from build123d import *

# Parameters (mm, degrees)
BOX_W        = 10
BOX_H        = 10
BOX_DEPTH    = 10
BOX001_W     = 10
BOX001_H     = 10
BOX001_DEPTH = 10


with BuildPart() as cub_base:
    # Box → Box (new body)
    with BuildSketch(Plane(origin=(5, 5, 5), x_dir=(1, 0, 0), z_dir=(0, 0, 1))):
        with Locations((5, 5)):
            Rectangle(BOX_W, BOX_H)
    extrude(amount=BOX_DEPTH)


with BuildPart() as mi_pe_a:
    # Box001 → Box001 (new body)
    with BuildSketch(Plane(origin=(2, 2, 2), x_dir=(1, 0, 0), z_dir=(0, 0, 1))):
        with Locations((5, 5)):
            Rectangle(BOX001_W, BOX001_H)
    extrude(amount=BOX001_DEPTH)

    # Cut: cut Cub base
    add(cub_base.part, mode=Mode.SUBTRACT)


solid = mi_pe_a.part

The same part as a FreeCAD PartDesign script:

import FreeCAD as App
import Part
import Sketcher
from FreeCAD import Vector
Q = App.Units.Quantity


def add_polygon(sketch, points):
    """Adds a closed chain of lines whose ends are joined by coincident constraints."""
    first, n = sketch.GeometryCount, len(points)
    for a, b in zip(points, points[1:] + points[:1]):
        sketch.addGeometry(Part.LineSegment(App.Vector(*a, 0), App.Vector(*b, 0)), False)
    for i in range(n):
        sketch.addConstraint(Sketcher.Constraint("Coincident", first + i, 2, first + (i + 1) % n, 1))

doc = App.newDocument("Part")
body = doc.addObject("PartDesign::Body", "Body")

# Sketch on XY plane
sketch1 = body.newObject("Sketcher::SketchObject", "Sketch")
sketch1.AttachmentSupport = (doc.getObject("XY_Plane"), [""])
sketch1.MapMode = "FlatFace"
sketch1.AttachmentOffset = App.Placement(Vector(0, 0, 5), App.Rotation())
add_polygon(sketch1, [(5, 15), (5, 5), (15, 5), (15, 15)])  # lines 0-3
sketch1.addConstraint([
    Sketcher.Constraint("Vertical", 0),
    Sketcher.Constraint("Horizontal", 1),
    Sketcher.Constraint("Vertical", 2),
    Sketcher.Constraint("Horizontal", 3),
    Sketcher.Constraint("Equal", 3, 0),
    Sketcher.Constraint("DistanceX", 1, 1, 1, 2, Q("10 mm")),
    Sketcher.Constraint("DistanceX", -1, 1, 0, 2, Q("5 mm")),
    Sketcher.Constraint("DistanceY", -1, 1, 0, 2, Q("5 mm")),
])
pad1 = body.newObject("PartDesign::Pad", "Pad")
pad1.Profile = sketch1
pad1.Length = 10
body2 = doc.addObject("PartDesign::Body", "Body001")

# Sketch on XY plane
sketch2 = body2.newObject("Sketcher::SketchObject", "Sketch001")
sketch2.AttachmentSupport = (doc.getObject("XY_Plane001"), [""])
sketch2.MapMode = "FlatFace"
sketch2.AttachmentOffset = App.Placement(Vector(0, 0, 2), App.Rotation())
add_polygon(sketch2, [(2, 12), (2, 2), (12, 2), (12, 12)])  # lines 0-3
sketch2.addConstraint([
    Sketcher.Constraint("Vertical", 0),
    Sketcher.Constraint("Horizontal", 1),
    Sketcher.Constraint("Vertical", 2),
    Sketcher.Constraint("Horizontal", 3),
    Sketcher.Constraint("Equal", 3, 0),
    Sketcher.Constraint("DistanceX", 1, 1, 1, 2, Q("10 mm")),
    Sketcher.Constraint("DistanceX", -1, 1, 0, 2, Q("2 mm")),
    Sketcher.Constraint("DistanceY", -1, 1, 0, 2, Q("2 mm")),
])
pad2 = body2.newObject("PartDesign::Pad", "Pad001")
pad2.Profile = sketch2
pad2.Length = 10
doc.recompute()

boolean = body2.newObject("PartDesign::Boolean", "Boolean")
boolean.Type = "Cut"
boolean.addObjects([body])

doc.recompute()
